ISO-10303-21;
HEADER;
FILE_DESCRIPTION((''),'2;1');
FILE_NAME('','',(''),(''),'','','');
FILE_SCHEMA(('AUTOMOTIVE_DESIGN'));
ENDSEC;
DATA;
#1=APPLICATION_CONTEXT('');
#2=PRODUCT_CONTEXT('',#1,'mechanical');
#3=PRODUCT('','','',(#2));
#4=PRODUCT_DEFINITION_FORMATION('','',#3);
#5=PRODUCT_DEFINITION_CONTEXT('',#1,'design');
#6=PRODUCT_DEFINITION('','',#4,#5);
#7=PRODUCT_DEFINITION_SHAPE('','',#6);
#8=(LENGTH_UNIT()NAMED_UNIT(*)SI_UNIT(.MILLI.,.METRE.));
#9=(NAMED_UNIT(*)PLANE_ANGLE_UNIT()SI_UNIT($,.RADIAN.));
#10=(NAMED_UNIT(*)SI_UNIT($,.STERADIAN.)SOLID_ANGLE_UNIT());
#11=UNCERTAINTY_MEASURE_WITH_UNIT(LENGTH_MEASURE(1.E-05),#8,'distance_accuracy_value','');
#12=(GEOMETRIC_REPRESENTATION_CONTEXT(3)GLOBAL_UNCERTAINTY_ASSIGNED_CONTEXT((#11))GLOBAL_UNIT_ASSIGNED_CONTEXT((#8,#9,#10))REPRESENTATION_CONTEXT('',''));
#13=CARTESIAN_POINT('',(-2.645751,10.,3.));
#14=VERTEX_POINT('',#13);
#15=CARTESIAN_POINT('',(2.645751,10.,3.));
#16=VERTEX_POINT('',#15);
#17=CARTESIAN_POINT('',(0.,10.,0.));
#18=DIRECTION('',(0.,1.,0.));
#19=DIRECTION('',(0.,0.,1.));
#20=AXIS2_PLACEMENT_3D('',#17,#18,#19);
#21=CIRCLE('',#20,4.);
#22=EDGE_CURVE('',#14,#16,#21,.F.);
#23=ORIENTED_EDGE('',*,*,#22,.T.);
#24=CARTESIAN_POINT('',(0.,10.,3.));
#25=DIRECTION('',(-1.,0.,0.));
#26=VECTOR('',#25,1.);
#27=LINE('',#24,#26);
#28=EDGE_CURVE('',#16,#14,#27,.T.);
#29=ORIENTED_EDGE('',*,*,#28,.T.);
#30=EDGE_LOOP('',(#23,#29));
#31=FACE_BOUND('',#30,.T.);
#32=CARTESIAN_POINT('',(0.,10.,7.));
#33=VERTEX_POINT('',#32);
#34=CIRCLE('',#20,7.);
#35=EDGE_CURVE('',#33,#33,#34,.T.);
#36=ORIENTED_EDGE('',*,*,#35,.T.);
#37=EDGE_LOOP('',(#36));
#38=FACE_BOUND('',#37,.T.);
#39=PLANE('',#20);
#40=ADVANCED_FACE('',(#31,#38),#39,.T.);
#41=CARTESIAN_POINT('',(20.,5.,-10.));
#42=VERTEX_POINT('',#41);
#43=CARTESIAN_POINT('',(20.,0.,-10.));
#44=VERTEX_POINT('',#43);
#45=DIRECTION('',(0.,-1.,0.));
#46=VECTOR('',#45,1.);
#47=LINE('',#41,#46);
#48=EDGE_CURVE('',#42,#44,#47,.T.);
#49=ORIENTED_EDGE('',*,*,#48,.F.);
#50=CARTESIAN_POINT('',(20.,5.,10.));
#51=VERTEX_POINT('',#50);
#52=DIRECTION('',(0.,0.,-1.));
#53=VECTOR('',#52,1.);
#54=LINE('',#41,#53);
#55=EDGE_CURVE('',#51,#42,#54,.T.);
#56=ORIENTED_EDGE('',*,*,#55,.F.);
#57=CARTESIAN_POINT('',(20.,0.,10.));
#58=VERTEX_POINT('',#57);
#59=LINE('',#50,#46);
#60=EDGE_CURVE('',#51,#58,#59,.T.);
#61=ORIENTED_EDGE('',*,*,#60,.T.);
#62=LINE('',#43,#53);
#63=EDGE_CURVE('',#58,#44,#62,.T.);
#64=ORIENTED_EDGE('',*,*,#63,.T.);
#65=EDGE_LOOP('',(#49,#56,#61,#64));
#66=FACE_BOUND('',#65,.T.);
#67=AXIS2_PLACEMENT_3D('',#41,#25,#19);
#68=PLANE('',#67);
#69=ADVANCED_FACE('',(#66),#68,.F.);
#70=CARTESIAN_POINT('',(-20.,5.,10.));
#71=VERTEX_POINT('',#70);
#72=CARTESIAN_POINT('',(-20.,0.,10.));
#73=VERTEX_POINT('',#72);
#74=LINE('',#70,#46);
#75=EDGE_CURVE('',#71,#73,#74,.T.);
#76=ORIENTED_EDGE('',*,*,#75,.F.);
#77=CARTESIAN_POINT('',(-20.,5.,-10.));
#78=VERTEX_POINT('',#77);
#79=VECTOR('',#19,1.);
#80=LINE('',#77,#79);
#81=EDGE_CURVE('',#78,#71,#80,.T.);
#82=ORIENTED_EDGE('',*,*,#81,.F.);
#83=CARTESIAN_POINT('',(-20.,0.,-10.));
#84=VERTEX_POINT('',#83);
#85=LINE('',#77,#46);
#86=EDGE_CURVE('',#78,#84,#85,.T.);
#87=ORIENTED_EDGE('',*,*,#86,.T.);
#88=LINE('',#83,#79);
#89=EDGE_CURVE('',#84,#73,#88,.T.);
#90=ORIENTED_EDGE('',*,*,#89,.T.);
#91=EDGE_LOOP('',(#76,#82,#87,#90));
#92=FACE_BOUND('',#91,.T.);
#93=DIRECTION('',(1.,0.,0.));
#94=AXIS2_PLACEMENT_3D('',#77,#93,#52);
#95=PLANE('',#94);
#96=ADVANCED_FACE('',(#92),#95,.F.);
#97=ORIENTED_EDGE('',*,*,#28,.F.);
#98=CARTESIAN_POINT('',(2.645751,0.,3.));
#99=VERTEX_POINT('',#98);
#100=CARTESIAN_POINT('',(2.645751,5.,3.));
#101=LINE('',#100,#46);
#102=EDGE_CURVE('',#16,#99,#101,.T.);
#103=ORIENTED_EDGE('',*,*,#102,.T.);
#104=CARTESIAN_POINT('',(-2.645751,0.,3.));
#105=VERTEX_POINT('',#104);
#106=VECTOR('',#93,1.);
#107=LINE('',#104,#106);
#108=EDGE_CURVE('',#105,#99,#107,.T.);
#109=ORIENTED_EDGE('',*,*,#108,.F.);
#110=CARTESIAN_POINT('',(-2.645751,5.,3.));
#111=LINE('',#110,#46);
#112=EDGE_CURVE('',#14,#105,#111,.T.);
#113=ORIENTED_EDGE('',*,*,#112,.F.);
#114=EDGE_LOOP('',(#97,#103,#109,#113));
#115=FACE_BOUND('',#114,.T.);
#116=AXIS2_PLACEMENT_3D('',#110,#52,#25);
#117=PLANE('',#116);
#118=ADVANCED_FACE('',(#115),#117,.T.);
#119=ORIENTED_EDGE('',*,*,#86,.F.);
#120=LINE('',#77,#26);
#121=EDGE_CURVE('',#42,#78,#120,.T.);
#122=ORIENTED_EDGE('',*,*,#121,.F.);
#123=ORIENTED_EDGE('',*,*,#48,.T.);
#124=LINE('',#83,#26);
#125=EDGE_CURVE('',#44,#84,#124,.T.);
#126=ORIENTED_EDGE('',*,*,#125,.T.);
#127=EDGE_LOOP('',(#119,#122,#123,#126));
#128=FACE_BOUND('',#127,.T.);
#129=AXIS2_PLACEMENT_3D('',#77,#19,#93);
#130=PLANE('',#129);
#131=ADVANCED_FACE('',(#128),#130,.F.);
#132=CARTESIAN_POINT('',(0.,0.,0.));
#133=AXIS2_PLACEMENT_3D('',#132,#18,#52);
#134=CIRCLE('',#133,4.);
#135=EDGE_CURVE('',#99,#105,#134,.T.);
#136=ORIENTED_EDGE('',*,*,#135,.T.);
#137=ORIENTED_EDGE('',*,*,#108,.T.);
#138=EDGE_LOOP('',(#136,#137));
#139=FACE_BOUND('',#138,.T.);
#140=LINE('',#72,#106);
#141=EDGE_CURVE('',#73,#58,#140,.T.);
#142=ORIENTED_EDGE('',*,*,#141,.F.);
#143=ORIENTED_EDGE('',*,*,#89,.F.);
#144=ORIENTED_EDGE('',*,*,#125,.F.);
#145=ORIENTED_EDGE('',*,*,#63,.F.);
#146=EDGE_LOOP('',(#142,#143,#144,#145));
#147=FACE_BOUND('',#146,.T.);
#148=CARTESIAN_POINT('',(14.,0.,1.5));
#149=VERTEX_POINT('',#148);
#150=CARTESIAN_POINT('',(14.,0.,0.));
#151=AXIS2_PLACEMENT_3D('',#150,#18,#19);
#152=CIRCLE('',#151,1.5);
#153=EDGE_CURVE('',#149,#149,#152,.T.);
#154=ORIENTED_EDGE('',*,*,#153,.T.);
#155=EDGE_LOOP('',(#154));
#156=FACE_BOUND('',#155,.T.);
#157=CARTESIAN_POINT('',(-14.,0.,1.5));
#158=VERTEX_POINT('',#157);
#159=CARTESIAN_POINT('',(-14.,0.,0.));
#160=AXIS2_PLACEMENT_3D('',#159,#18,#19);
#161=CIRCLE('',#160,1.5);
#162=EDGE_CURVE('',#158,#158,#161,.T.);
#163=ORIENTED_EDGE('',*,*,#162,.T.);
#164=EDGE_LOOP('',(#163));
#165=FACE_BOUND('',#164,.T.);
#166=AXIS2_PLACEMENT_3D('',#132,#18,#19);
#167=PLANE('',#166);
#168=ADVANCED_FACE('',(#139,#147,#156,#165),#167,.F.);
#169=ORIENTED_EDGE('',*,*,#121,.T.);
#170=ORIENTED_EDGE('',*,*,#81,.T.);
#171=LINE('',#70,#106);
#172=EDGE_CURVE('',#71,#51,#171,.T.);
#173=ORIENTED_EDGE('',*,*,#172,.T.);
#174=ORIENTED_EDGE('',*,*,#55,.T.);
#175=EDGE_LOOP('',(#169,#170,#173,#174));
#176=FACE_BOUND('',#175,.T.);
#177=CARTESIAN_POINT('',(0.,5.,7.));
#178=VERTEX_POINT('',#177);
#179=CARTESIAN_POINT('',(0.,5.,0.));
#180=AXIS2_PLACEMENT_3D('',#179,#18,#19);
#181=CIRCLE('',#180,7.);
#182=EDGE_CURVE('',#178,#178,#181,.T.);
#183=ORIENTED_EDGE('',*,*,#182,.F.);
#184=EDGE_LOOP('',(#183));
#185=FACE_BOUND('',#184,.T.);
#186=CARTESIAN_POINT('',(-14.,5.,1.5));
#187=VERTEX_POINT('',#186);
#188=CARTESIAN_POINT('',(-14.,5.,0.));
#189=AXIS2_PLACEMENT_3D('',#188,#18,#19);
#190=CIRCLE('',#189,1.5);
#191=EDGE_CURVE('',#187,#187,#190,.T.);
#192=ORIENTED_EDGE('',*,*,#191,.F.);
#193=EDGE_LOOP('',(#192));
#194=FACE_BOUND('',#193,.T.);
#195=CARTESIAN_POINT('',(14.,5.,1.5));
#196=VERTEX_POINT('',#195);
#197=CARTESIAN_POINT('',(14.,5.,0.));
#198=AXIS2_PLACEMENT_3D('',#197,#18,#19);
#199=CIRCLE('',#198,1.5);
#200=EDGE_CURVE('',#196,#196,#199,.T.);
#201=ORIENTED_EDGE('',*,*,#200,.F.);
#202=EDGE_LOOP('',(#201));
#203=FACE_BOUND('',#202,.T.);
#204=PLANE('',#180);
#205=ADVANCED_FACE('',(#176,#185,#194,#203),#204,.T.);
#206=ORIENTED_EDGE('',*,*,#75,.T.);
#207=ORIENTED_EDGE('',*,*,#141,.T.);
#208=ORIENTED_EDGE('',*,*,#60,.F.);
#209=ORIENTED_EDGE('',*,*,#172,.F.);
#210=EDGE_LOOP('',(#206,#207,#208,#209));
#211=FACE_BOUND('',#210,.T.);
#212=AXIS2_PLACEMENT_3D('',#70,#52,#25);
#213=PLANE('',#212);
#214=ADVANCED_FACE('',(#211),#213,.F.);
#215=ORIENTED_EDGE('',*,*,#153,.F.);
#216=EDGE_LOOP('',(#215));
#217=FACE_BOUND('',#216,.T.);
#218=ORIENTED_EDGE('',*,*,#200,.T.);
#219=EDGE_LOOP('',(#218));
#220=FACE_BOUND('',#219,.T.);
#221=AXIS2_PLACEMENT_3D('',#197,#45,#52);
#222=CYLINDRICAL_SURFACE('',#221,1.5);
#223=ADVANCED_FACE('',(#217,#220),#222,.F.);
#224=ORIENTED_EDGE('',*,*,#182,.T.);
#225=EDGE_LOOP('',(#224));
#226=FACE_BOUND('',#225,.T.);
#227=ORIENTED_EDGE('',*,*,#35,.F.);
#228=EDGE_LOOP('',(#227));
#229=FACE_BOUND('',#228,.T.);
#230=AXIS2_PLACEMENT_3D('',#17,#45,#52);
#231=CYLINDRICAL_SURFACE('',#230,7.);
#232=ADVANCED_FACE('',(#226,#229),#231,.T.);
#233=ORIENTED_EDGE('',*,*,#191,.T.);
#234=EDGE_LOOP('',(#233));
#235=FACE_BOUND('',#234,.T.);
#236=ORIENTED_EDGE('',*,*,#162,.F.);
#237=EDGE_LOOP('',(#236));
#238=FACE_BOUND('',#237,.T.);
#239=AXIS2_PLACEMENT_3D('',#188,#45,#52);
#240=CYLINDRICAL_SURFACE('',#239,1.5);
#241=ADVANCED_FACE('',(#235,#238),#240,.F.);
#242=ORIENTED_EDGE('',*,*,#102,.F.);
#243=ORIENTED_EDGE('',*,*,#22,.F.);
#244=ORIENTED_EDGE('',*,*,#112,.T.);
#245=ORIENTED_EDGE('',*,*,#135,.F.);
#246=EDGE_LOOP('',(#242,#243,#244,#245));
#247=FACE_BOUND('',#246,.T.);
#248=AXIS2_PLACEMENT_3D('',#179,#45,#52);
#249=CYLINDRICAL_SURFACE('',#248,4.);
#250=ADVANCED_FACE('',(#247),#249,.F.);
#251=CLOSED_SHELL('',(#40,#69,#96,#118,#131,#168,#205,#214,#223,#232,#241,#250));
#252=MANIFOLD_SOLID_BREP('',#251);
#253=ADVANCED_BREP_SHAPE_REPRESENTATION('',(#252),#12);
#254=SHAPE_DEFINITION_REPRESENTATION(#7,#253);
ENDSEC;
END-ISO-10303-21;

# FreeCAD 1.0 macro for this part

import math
import FreeCAD as App
import Part
import Sketcher

V = App.Vector

doc = App.newDocument("Part")
body = doc.addObject("PartDesign::Body", "Body")

sketch1 = doc.addObject("Sketcher::SketchObject", "Sketch")
body.addObject(sketch1)
sketch1.AttachmentSupport = (doc.XZ_Plane, [""])
sketch1.MapMode = "FlatFace"
sketch1.addGeometry(Part.LineSegment(V(-20, -10, 0), V(-20, 10, 0)), False)
sketch1.addGeometry(Part.LineSegment(V(-20, 10, 0), V(20, 10, 0)), False)
sketch1.addGeometry(Part.LineSegment(V(20, 10, 0), V(20, -10, 0)), False)
sketch1.addGeometry(Part.LineSegment(V(20, -10, 0), V(-20, -10, 0)), False)
sketch1.addGeometry(Part.Circle(V(-14, 0, 0), V(0, 0, 1), 1.5), False)
sketch1.addGeometry(Part.Circle(V(14, 0, 0), V(0, 0, 1), 1.5), False)
sketch1.addGeometry(Part.LineSegment(V(2.645751, 3, 0), V(-2.645751, 3, 0)), False)
sketch1.addGeometry(Part.ArcOfCircle(Part.Circle(V(0, 0, 0), V(0, 0, 1), 4), math.radians(131.409622), math.radians(408.590378)), False)
sketch1.addConstraint(Sketcher.Constraint("Coincident", 0, 2, 1, 1))
sketch1.addConstraint(Sketcher.Constraint("Coincident", 1, 2, 2, 1))
sketch1.addConstraint(Sketcher.Constraint("Coincident", 2, 2, 3, 1))
sketch1.addConstraint(Sketcher.Constraint("Coincident", 3, 2, 0, 1))
sketch1.addConstraint(Sketcher.Constraint("Coincident", 6, 1, 7, 2))
sketch1.addConstraint(Sketcher.Constraint("Coincident", 7, 1, 6, 2))
sketch1.addConstraint(Sketcher.Constraint("Vertical", 0))
sketch1.addConstraint(Sketcher.Constraint("Horizontal", 1))
sketch1.addConstraint(Sketcher.Constraint("Vertical", 2))
sketch1.addConstraint(Sketcher.Constraint("Horizontal", 3))
sketch1.addConstraint(Sketcher.Constraint("Horizontal", 6))
sketch1.addConstraint(Sketcher.Constraint("Coincident", 7, 3, -1, 1))
sketch1.addConstraint(Sketcher.Constraint("Equal", 4, 5))
sketch1.addConstraint(Sketcher.Constraint("Symmetric", 4, 3, 5, 3, -1, 1))
sketch1.addConstraint(Sketcher.Constraint("Symmetric", 0, 2, 2, 2, -1, 1))
sketch1.addConstraint(Sketcher.Constraint("PointOnObject", 4, 3, -1))
sketch1.addConstraint(Sketcher.Constraint("Diameter", 4, 3.0))
sketch1.addConstraint(Sketcher.Constraint("Radius", 7, 4.0))
sketch1.addConstraint(Sketcher.Constraint("DistanceX", 1, 1, 1, 2, 40.0))
sketch1.addConstraint(Sketcher.Constraint("DistanceY", 0, 1, 0, 2, 20.0))
sketch1.addConstraint(Sketcher.Constraint("DistanceX", 4, 3, -1, 1, 14.0))
sketch1.addConstraint(Sketcher.Constraint("DistanceY", -1, 1, 6, 1, 3.0))
pad1 = doc.addObject("PartDesign::Pad", "Pad")
body.addObject(pad1)
pad1.Profile = sketch1
pad1.Length = 5
pad1.Reversed = True

sketch2 = doc.addObject("Sketcher::SketchObject", "Sketch001")
body.addObject(sketch2)
sketch2.AttachmentSupport = (doc.XZ_Plane, [""])
sketch2.MapMode = "FlatFace"
sketch2.AttachmentOffset = App.Placement(V(0, 0, -5), App.Rotation())
sketch2.addGeometry(Part.Circle(V(0, 0, 0), V(0, 0, 1), 7), False)
sketch2.addGeometry(Part.LineSegment(V(2.645751, 3, 0), V(-2.645751, 3, 0)), False)
sketch2.addGeometry(Part.ArcOfCircle(Part.Circle(V(0, 0, 0), V(0, 0, 1), 4), math.radians(131.409622), math.radians(408.590378)), False)
sketch2.addConstraint(Sketcher.Constraint("Coincident", 1, 1, 2, 2))
sketch2.addConstraint(Sketcher.Constraint("Coincident", 2, 1, 1, 2))
sketch2.addConstraint(Sketcher.Constraint("Horizontal", 1))
sketch2.addConstraint(Sketcher.Constraint("Coincident", 0, 3, -1, 1))
sketch2.addConstraint(Sketcher.Constraint("Coincident", 2, 3, -1, 1))
sketch2.addConstraint(Sketcher.Constraint("Diameter", 0, 14.0))
sketch2.addConstraint(Sketcher.Constraint("Radius", 2, 4.0))
sketch2.addConstraint(Sketcher.Constraint("DistanceY", -1, 1, 1, 1, 3.0))
pad2 = doc.addObject("PartDesign::Pad", "Pad001")
body.addObject(pad2)
pad2.Profile = sketch2
pad2.Length = 5
pad2.Reversed = True

doc.recompute()
